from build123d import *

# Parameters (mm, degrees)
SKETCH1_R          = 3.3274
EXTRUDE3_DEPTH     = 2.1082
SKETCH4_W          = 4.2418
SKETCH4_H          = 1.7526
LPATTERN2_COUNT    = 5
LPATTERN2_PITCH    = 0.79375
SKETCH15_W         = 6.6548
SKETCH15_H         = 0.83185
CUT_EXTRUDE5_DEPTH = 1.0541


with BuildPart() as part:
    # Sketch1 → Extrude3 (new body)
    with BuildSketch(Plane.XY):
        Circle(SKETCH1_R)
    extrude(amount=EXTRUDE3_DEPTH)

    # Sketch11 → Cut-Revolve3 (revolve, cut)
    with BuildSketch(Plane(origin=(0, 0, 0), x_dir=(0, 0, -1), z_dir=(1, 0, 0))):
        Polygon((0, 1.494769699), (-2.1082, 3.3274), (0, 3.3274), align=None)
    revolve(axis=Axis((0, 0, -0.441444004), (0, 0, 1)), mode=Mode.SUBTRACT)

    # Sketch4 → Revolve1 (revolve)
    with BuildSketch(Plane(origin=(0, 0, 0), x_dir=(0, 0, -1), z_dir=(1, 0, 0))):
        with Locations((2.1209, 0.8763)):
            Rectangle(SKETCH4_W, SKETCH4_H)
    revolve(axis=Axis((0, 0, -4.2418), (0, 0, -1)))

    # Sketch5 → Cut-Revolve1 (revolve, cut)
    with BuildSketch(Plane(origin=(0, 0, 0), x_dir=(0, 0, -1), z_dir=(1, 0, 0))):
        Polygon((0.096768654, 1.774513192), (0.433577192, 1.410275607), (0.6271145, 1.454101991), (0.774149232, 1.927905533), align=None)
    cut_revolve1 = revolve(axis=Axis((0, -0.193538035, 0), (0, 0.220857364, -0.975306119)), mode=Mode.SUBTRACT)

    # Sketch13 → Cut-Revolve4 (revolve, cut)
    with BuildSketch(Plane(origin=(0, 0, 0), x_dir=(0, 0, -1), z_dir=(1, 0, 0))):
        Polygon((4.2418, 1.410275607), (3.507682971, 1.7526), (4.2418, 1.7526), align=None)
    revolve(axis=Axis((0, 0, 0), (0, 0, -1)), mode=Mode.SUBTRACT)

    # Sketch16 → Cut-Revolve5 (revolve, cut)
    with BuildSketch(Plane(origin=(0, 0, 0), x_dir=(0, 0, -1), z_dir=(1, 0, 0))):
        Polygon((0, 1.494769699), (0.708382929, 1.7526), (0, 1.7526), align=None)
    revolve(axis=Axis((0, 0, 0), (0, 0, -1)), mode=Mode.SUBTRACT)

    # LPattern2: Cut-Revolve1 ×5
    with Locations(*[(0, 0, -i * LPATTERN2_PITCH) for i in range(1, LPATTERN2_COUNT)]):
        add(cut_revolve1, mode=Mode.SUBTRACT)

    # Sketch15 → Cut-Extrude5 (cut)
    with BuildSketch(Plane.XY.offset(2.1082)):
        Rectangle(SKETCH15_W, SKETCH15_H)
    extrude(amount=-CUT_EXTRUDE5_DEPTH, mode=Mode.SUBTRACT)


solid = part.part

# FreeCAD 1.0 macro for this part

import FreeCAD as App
import Part
import Sketcher
from FreeCAD import Vector
Q = App.Units.Quantity

doc = App.newDocument("Part")
body = doc.addObject("PartDesign::Body", "Body")

# Sketch on XY plane
sketch1 = body.newObject("Sketcher::SketchObject", "Sketch")
sketch1.AttachmentSupport = (doc.getObject("XY_Plane"), [""])
sketch1.MapMode = "FlatFace"
sketch1.addGeometry(Part.Circle(Vector(0, 0, 0), Vector(0, 0, 1), 3.3), False)
sketch1.addConstraint([
    Sketcher.Constraint("Coincident", 0, 3, -1, 1),
    Sketcher.Constraint("Diameter", 0, Q("0.262 in")),
])
pad1 = body.newObject("PartDesign::Pad", "Pad")
pad1.Profile = sketch1
pad1.Length = Q("0.083 in")

# Sketch on YZ plane
sketch2 = body.newObject("Sketcher::SketchObject", "Sketch001")
sketch2.AttachmentSupport = (doc.getObject("YZ_Plane"), [""])
sketch2.MapMode = "FlatFace"
sketch2.addGeometry([
    Part.LineSegment(Vector(3.3, 2.1, 0), Vector(1.5, 0, 0)),
    Part.LineSegment(Vector(1.5, 0, 0), Vector(3.3, 0, 0)),
    Part.LineSegment(Vector(3.3, 0, 0), Vector(3.3, 2.1, 0)),
], False)
sketch2.addConstraint([
    Sketcher.Constraint("Coincident", 0, 2, 1, 1),
    Sketcher.Constraint("Coincident", 1, 2, 2, 1),
    Sketcher.Constraint("Coincident", 2, 2, 0, 1),
    Sketcher.Constraint("Horizontal", 1),
    Sketcher.Constraint("Vertical", 2),
    Sketcher.Constraint("PointOnObject", 0, 2, -1),
    Sketcher.Constraint("Angle", 0, Q("-131 deg")),
    Sketcher.Constraint("DistanceY", 2, 1, 2, 2, Q("0.083 in")),
    Sketcher.Constraint("DistanceX", -1, 1, 1, 2, Q("0.131 in")),
])
groove = body.newObject("PartDesign::Groove", "Groove")
groove.Profile = sketch2
groove.ReferenceAxis = (sketch2, ["V_Axis"])
groove.Angle = 360

# Sketch on YZ plane
sketch3 = body.newObject("Sketcher::SketchObject", "Sketch002")
sketch3.AttachmentSupport = (doc.getObject("YZ_Plane"), [""])
sketch3.MapMode = "FlatFace"
sketch3.addGeometry([
    Part.LineSegment(Vector(1.8, 0, 0), Vector(0, 0, 0)),
    Part.LineSegment(Vector(0, 0, 0), Vector(0, -4.2, 0)),
    Part.LineSegment(Vector(0, -4.2, 0), Vector(1.8, -4.2, 0)),
    Part.LineSegment(Vector(1.8, -4.2, 0), Vector(1.8, 0, 0)),
], False)
sketch3.addConstraint([
    Sketcher.Constraint("Coincident", 0, 2, 1, 1),
    Sketcher.Constraint("Coincident", 1, 2, 2, 1),
    Sketcher.Constraint("Coincident", 2, 2, 3, 1),
    Sketcher.Constraint("Coincident", 3, 2, 0, 1),
    Sketcher.Constraint("Horizontal", 0),
    Sketcher.Constraint("Vertical", 1),
    Sketcher.Constraint("Horizontal", 2),
    Sketcher.Constraint("Vertical", 3),
    Sketcher.Constraint("Coincident", 0, 2, -1, 1),
    Sketcher.Constraint("DistanceX", 0, 2, 0, 1, Q("0.069 in")),
    Sketcher.Constraint("DistanceY", 1, 2, 1, 1, Q("0.167 in")),
])
revolution = body.newObject("PartDesign::Revolution", "Revolution")
revolution.Profile = sketch3
revolution.ReferenceAxis = (sketch3, ["V_Axis"])
revolution.Angle = 360

# Sketch on YZ plane
sketch4 = body.newObject("Sketcher::SketchObject", "Sketch003")
sketch4.AttachmentSupport = (doc.getObject("YZ_Plane"), [""])
sketch4.MapMode = "FlatFace"
sketch4.addGeometry([
    Part.LineSegment(Vector(1.77, -0.1, 0), Vector(1.41, -0.43, 0)),
    Part.LineSegment(Vector(1.41, -0.43, 0), Vector(1.45, -0.63, 0)),
    Part.LineSegment(Vector(1.45, -0.63, 0), Vector(1.93, -0.77, 0)),
    Part.LineSegment(Vector(1.93, -0.77, 0), Vector(1.77, -0.1, 0)),
], False)
sketch4.addGeometry(Part.LineSegment(Vector(-0.08, -0.52, 0), Vector(0.08, -1.19, 0)), True)  # axis
sketch4.addConstraint([
    Sketcher.Constraint("Coincident", 0, 2, 1, 1),
    Sketcher.Constraint("Coincident", 1, 2, 2, 1),
    Sketcher.Constraint("Coincident", 2, 2, 3, 1),
    Sketcher.Constraint("Coincident", 3, 2, 0, 1),
    Sketcher.Constraint("Parallel", 1, 3),
    Sketcher.Constraint("Parallel", 3, 4),
    Sketcher.Constraint("Equal", 0, 2),
    Sketcher.Constraint("Equal", 3, 4),
    Sketcher.Constraint("DistanceX", -1, 1, 1, 2, 1.454102),
    Sketcher.Constraint("DistanceX", 4, 1, 1, 2, 1.530798),
    Sketcher.Constraint("DistanceX", 4, 1, 2, 2, 2.004602),
    Sketcher.Constraint("Distance", 3, 0.694531),
    Sketcher.Constraint("DistanceY", 2, 2, -1, 1, 0.774149),
    Sketcher.Constraint("DistanceY", 3, 2, -1, 1, 0.096769),
    Sketcher.Constraint("DistanceX", 0, 2, 2, 2, 0.51763),
    Sketcher.Constraint("DistanceY", 1, 2, 4, 1, 0.111141),
])
groove2 = body.newObject("PartDesign::Groove", "Groove001")
groove2.Profile = sketch4
groove2.ReferenceAxis = (sketch4, ["Axis0"])
groove2.Angle = 360

# Sketch on YZ plane
sketch5 = body.newObject("Sketcher::SketchObject", "Sketch004")
sketch5.AttachmentSupport = (doc.getObject("YZ_Plane"), [""])
sketch5.MapMode = "FlatFace"
sketch5.addGeometry([
    Part.LineSegment(Vector(1.75, -3.51, 0), Vector(1.41, -4.24, 0)),
    Part.LineSegment(Vector(1.41, -4.24, 0), Vector(1.75, -4.24, 0)),
    Part.LineSegment(Vector(1.75, -4.24, 0), Vector(1.75, -3.51, 0)),
], False)
sketch5.addConstraint([
    Sketcher.Constraint("Coincident", 0, 2, 1, 1),
    Sketcher.Constraint("Coincident", 1, 2, 2, 1),
    Sketcher.Constraint("Coincident", 2, 2, 0, 1),
    Sketcher.Constraint("Horizontal", 1),
    Sketcher.Constraint("Vertical", 2),
    Sketcher.Constraint("Angle", 0, Q("-115 deg")),
    Sketcher.Constraint("DistanceY", 0, 2, -1, 1, Q("0.167 in")),
    Sketcher.Constraint("DistanceX", -1, 1, 1, 2, Q("0.069 in")),
    Sketcher.Constraint("Distance", 0, 0.810009),
])
groove3 = body.newObject("PartDesign::Groove", "Groove002")
groove3.Profile = sketch5
groove3.ReferenceAxis = (sketch5, ["V_Axis"])
groove3.Angle = 360

# Sketch on YZ plane
sketch6 = body.newObject("Sketcher::SketchObject", "Sketch005")
sketch6.AttachmentSupport = (doc.getObject("YZ_Plane"), [""])
sketch6.MapMode = "FlatFace"
sketch6.addGeometry([
    Part.LineSegment(Vector(1.49, 0, 0), Vector(1.75, -0.71, 0)),
    Part.LineSegment(Vector(1.75, -0.71, 0), Vector(1.75, 0, 0)),
    Part.LineSegment(Vector(1.75, 0, 0), Vector(1.49, 0, 0)),
], False)
sketch6.addConstraint([
    Sketcher.Constraint("Coincident", 0, 2, 1, 1),
    Sketcher.Constraint("Coincident", 1, 2, 2, 1),
    Sketcher.Constraint("Coincident", 2, 2, 0, 1),
    Sketcher.Constraint("Vertical", 1),
    Sketcher.Constraint("Horizontal", 2),
    Sketcher.Constraint("PointOnObject", 1, 2, -1),
    Sketcher.Constraint("Angle", 0, Q("-70 deg")),
    Sketcher.Constraint("DistanceX", -1, 1, 0, 2, Q("0.069 in")),
    Sketcher.Constraint("DistanceX", 2, 2, 2, 1, 0.25783),
])
groove4 = body.newObject("PartDesign::Groove", "Groove003")
groove4.Profile = sketch6
groove4.ReferenceAxis = (sketch6, ["V_Axis"])
groove4.Angle = 360
doc.recompute()

linearpattern = body.newObject("PartDesign::LinearPattern", "LinearPattern")
linearpattern.Originals = [groove2]
linearpattern.Direction = (doc.getObject("Z_Axis"), [""])
linearpattern.Mode = "offset"
linearpattern.Offset = Q("0.03125 in")
linearpattern.Occurrences = 5
linearpattern.Reversed = True
body.Tip = linearpattern

# Sketch on XY plane
sketch7 = body.newObject("Sketcher::SketchObject", "Sketch006")
sketch7.AttachmentSupport = (doc.getObject("XY_Plane"), [""])
sketch7.MapMode = "FlatFace"
sketch7.AttachmentOffset = App.Placement(Vector(0, 0, 0.083 * 25.4), App.Rotation())
sketch7.addGeometry([
    Part.LineSegment(Vector(-3.3, 0.4, 0), Vector(-3.3, -0.4, 0)),
    Part.LineSegment(Vector(-3.3, -0.4, 0), Vector(3.3, -0.4, 0)),
    Part.LineSegment(Vector(3.3, -0.4, 0), Vector(3.3, 0.4, 0)),
    Part.LineSegment(Vector(3.3, 0.4, 0), Vector(-3.3, 0.4, 0)),
], False)
sketch7.addConstraint([
    Sketcher.Constraint("Coincident", 0, 2, 1, 1),
    Sketcher.Constraint("Coincident", 1, 2, 2, 1),
    Sketcher.Constraint("Coincident", 2, 2, 3, 1),
    Sketcher.Constraint("Coincident", 3, 2, 0, 1),
    Sketcher.Constraint("Vertical", 0),
    Sketcher.Constraint("Horizontal", 1),
    Sketcher.Constraint("Vertical", 2),
    Sketcher.Constraint("Horizontal", 3),
    Sketcher.Constraint("Symmetric", 0, 2, 2, 2, -1, 1),
    Sketcher.Constraint("DistanceX", 1, 1, 1, 2, Q("0.262 in")),
    Sketcher.Constraint("DistanceY", 0, 2, 0, 1, 0.83185),
])
pocket1 = body.newObject("PartDesign::Pocket", "Pocket")
pocket1.Profile = sketch7
pocket1.Length = Q("0.0415 in")

doc.recompute()
